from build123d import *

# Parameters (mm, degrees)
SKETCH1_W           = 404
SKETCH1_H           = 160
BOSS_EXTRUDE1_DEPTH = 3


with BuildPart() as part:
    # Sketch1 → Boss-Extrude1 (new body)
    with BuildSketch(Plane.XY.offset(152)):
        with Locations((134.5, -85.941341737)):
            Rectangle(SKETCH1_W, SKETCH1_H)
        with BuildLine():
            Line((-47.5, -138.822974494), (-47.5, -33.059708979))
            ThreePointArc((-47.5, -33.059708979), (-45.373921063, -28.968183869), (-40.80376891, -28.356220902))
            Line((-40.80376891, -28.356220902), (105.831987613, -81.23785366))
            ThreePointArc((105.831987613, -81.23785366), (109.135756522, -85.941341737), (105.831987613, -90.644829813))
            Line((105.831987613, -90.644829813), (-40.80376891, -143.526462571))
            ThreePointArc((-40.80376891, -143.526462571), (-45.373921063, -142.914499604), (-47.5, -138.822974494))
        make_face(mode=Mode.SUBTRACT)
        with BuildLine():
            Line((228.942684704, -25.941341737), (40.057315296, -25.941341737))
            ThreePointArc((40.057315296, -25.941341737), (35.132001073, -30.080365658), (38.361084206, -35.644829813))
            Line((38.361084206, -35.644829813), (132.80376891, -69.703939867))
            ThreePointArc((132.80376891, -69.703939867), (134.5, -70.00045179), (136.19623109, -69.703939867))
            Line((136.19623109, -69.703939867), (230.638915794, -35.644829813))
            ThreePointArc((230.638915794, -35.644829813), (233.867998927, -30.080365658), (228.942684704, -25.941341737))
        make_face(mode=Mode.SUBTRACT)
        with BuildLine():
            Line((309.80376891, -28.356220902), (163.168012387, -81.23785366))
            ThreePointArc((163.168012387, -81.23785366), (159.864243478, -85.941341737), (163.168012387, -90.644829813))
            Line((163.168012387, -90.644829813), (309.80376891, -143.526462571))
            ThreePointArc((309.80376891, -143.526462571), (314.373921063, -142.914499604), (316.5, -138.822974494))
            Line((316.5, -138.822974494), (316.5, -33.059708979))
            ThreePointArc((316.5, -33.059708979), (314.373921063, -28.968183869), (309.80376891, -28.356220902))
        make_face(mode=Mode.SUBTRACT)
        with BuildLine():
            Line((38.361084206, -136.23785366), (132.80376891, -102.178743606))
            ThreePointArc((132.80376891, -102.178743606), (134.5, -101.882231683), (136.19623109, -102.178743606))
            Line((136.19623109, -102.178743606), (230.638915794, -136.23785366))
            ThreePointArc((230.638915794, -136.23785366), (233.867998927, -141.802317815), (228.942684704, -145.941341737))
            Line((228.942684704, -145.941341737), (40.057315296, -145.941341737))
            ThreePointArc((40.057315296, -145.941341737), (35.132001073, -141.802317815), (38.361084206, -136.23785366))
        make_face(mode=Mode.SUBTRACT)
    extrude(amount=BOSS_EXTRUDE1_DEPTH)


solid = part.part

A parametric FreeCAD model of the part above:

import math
import FreeCAD as App
import Part
import Sketcher

doc = App.newDocument("Part")
body = doc.addObject("PartDesign::Body", "Body")

# Sketch on XY plane
sketch1 = doc.addObject("Sketcher::SketchObject", "Sketch")
body.addObject(sketch1)
sketch1.AttachmentSupport = (doc.XY_Plane, [""])
sketch1.MapMode = "FlatFace"
sketch1.AttachmentOffset = App.Placement(App.Vector(0, 0, 152), App.Rotation())
sketch1.addGeometry(Part.LineSegment(App.Vector(-67.5, -5.9, 0), App.Vector(-67.5, -165.9, 0)), False)
sketch1.addGeometry(Part.LineSegment(App.Vector(-67.5, -165.9, 0), App.Vector(336.5, -165.9, 0)), False)
sketch1.addGeometry(Part.LineSegment(App.Vector(336.5, -165.9, 0), App.Vector(336.5, -5.9, 0)), False)
sketch1.addGeometry(Part.LineSegment(App.Vector(336.5, -5.9, 0), App.Vector(-67.5, -5.9, 0)), False)
sketch1.addGeometry(Part.ArcOfCircle(Part.Circle(App.Vector(40.1, -140.9, 0), App.Vector(0, 0, 1), 5), math.radians(110), math.radians(270)), False)
sketch1.addGeometry(Part.LineSegment(App.Vector(38.4, -136.2, 0), App.Vector(132.8, -102.2, 0)), False)
sketch1.addGeometry(Part.ArcOfCircle(Part.Circle(App.Vector(134.5, -106.9, 0), App.Vector(0, 0, 1), 5), math.radians(70), math.radians(110)), False)
sketch1.addGeometry(Part.LineSegment(App.Vector(136.2, -102.2, 0), App.Vector(230.6, -136.2, 0)), False)
sketch1.addGeometry(Part.ArcOfCircle(Part.Circle(App.Vector(228.9, -140.9, 0), App.Vector(0, 0, 1), 5), math.radians(-90), math.radians(70)), False)
sketch1.addGeometry(Part.LineSegment(App.Vector(228.9, -145.9, 0), App.Vector(40.1, -145.9, 0)), False)
sketch1.addGeometry(Part.ArcOfCircle(Part.Circle(App.Vector(-42.5, -138.8, 0), App.Vector(0, 0, 1), 5), math.radians(180), math.radians(290)), False)
sketch1.addGeometry(Part.LineSegment(App.Vector(-47.5, -138.8, 0), App.Vector(-47.5, -33.1, 0)), False)
sketch1.addGeometry(Part.ArcOfCircle(Part.Circle(App.Vector(-42.5, -33.1, 0), App.Vector(0, 0, 1), 5), math.radians(70), math.radians(180)), False)
sketch1.addGeometry(Part.LineSegment(App.Vector(-40.8, -28.4, 0), App.Vector(105.8, -81.2, 0)), False)
sketch1.addGeometry(Part.ArcOfCircle(Part.Circle(App.Vector(104.1, -85.9, 0), App.Vector(0, 0, 1), 5), math.radians(-70), math.radians(70)), False)
sketch1.addGeometry(Part.LineSegment(App.Vector(105.8, -90.6, 0), App.Vector(-40.8, -143.5, 0)), False)
sketch1.addGeometry(Part.LineSegment(App.Vector(163.2, -81.2, 0), App.Vector(309.8, -28.4, 0)), False)
sketch1.addGeometry(Part.ArcOfCircle(Part.Circle(App.Vector(311.5, -33.1, 0), App.Vector(0, 0, 1), 5), math.radians(0), math.radians(110)), False)
sketch1.addGeometry(Part.LineSegment(App.Vector(316.5, -33.1, 0), App.Vector(316.5, -138.8, 0)), False)
sketch1.addGeometry(Part.ArcOfCircle(Part.Circle(App.Vector(311.5, -138.8, 0), App.Vector(0, 0, 1), 5), math.radians(-110), math.radians(0)), False)
sketch1.addGeometry(Part.LineSegment(App.Vector(309.8, -143.5, 0), App.Vector(163.2, -90.6, 0)), False)
sketch1.addGeometry(Part.ArcOfCircle(Part.Circle(App.Vector(164.9, -85.9, 0), App.Vector(0, 0, 1), 5), math.radians(110), math.radians(250)), False)
sketch1.addGeometry(Part.LineSegment(App.Vector(40.1, -25.9, 0), App.Vector(228.9, -25.9, 0)), False)
sketch1.addGeometry(Part.ArcOfCircle(Part.Circle(App.Vector(228.9, -30.9, 0), App.Vector(0, 0, 1), 5), math.radians(-70), math.radians(90)), False)
sketch1.addGeometry(Part.LineSegment(App.Vector(230.6, -35.6, 0), App.Vector(136.2, -69.7, 0)), False)
sketch1.addGeometry(Part.ArcOfCircle(Part.Circle(App.Vector(134.5, -65, 0), App.Vector(0, 0, 1), 5), math.radians(-110), math.radians(-70)), False)
sketch1.addGeometry(Part.LineSegment(App.Vector(132.8, -69.7, 0), App.Vector(38.4, -35.6, 0)), False)
sketch1.addGeometry(Part.ArcOfCircle(Part.Circle(App.Vector(40.1, -30.9, 0), App.Vector(0, 0, 1), 5), math.radians(90), math.radians(250)), False)
sketch1.addConstraint(Sketcher.Constraint("Coincident", 0, 2, 1, 1))
sketch1.addConstraint(Sketcher.Constraint("Coincident", 1, 2, 2, 1))
sketch1.addConstraint(Sketcher.Constraint("Coincident", 2, 2, 3, 1))
sketch1.addConstraint(Sketcher.Constraint("Coincident", 3, 2, 0, 1))
sketch1.addConstraint(Sketcher.Constraint("Tangent", 4, 1, 5, 1))
sketch1.addConstraint(Sketcher.Constraint("Tangent", 5, 2, 6, 2))
sketch1.addConstraint(Sketcher.Constraint("Tangent", 6, 1, 7, 1))
sketch1.addConstraint(Sketcher.Constraint("Tangent", 7, 2, 8, 2))
sketch1.addConstraint(Sketcher.Constraint("Tangent", 8, 1, 9, 1))
sketch1.addConstraint(Sketcher.Constraint("Tangent", 9, 2, 4, 2))
sketch1.addConstraint(Sketcher.Constraint("Tangent", 10, 1, 11, 1))
sketch1.addConstraint(Sketcher.Constraint("Tangent", 11, 2, 12, 2))
sketch1.addConstraint(Sketcher.Constraint("Tangent", 12, 1, 13, 1))
sketch1.addConstraint(Sketcher.Constraint("Tangent", 13, 2, 14, 2))
sketch1.addConstraint(Sketcher.Constraint("Tangent", 14, 1, 15, 1))
sketch1.addConstraint(Sketcher.Constraint("Tangent", 15, 2, 10, 2))
sketch1.addConstraint(Sketcher.Constraint("Tangent", 16, 2, 17, 2))
sketch1.addConstraint(Sketcher.Constraint("Tangent", 17, 1, 18, 1))
sketch1.addConstraint(Sketcher.Constraint("Tangent", 18, 2, 19, 2))
sketch1.addConstraint(Sketcher.Constraint("Tangent", 19, 1, 20, 1))
sketch1.addConstraint(Sketcher.Constraint("Tangent", 20, 2, 21, 2))
sketch1.addConstraint(Sketcher.Constraint("Tangent", 21, 1, 16, 1))
sketch1.addConstraint(Sketcher.Constraint("Tangent", 22, 2, 23, 2))
sketch1.addConstraint(Sketcher.Constraint("Tangent", 23, 1, 24, 1))
sketch1.addConstraint(Sketcher.Constraint("Tangent", 24, 2, 25, 2))
sketch1.addConstraint(Sketcher.Constraint("Tangent", 25, 1, 26, 1))
sketch1.addConstraint(Sketcher.Constraint("Tangent", 26, 2, 27, 2))
sketch1.addConstraint(Sketcher.Constraint("Tangent", 27, 1, 22, 1))
sketch1.addConstraint(Sketcher.Constraint("Vertical", 0))
sketch1.addConstraint(Sketcher.Constraint("Horizontal", 1))
sketch1.addConstraint(Sketcher.Constraint("Vertical", 2))
sketch1.addConstraint(Sketcher.Constraint("Horizontal", 3))
sketch1.addConstraint(Sketcher.Constraint("Horizontal", 9))
sketch1.addConstraint(Sketcher.Constraint("Vertical", 11))
sketch1.addConstraint(Sketcher.Constraint("Vertical", 18))
sketch1.addConstraint(Sketcher.Constraint("Horizontal", 22))
sketch1.addConstraint(Sketcher.Constraint("Equal", 4, 6))
sketch1.addConstraint(Sketcher.Constraint("Equal", 6, 8))
sketch1.addConstraint(Sketcher.Constraint("Equal", 8, 10))
sketch1.addConstraint(Sketcher.Constraint("Equal", 10, 12))
sketch1.addConstraint(Sketcher.Constraint("Equal", 12, 14))
sketch1.addConstraint(Sketcher.Constraint("Equal", 14, 17))
sketch1.addConstraint(Sketcher.Constraint("Equal", 17, 19))
sketch1.addConstraint(Sketcher.Constraint("Equal", 19, 21))
sketch1.addConstraint(Sketcher.Constraint("Equal", 21, 23))
sketch1.addConstraint(Sketcher.Constraint("Equal", 23, 25))
sketch1.addConstraint(Sketcher.Constraint("Equal", 25, 27))
sketch1.addConstraint(Sketcher.Constraint("Parallel", 7, 13))
sketch1.addConstraint(Sketcher.Constraint("Parallel", 5, 15))
sketch1.addConstraint(Sketcher.Constraint("Parallel", 15, 16))
sketch1.addConstraint(Sketcher.Constraint("Parallel", 13, 20))
sketch1.addConstraint(Sketcher.Constraint("Parallel", 16, 24))
sketch1.addConstraint(Sketcher.Constraint("Parallel", 20, 26))
sketch1.addConstraint(Sketcher.Constraint("Horizontal", 12, 3, 17, 3))
sketch1.addConstraint(Sketcher.Constraint("Horizontal", 10, 3, 19, 3))
sketch1.addConstraint(Sketcher.Constraint("Horizontal", 14, 3, 21, 3))
sketch1.addConstraint(Sketcher.Constraint("Vertical", 8, 3, 23, 3))
sketch1.addConstraint(Sketcher.Constraint("Vertical", 6, 3, 25, 3))
sketch1.addConstraint(Sketcher.Constraint("Radius", 4, 5.0))
sketch1.addConstraint(Sketcher.Constraint("DistanceX", 1, 1, 1, 2, 404.0))
sketch1.addConstraint(Sketcher.Constraint("DistanceY", 0, 2, 0, 1, 160.0))
sketch1.addConstraint(Sketcher.Constraint("DistanceX", 10, 3, 6, 3, 177.0))
sketch1.addConstraint(Sketcher.Constraint("DistanceY", 4, 3, 14, 3, 55.0))
sketch1.addConstraint(Sketcher.Constraint("DistanceX", 6, 3, 17, 3, 177.0))
sketch1.addConstraint(Sketcher.Constraint("DistanceY", 21, 3, 23, 3, 55.0))
sketch1.addConstraint(Sketcher.Constraint("DistanceX", 0, 2, 10, 3, 25.0))
sketch1.addConstraint(Sketcher.Constraint("DistanceY", 0, 2, 4, 3, 25.0))
sketch1.addConstraint(Sketcher.Constraint("DistanceX", -1, 1, 6, 3, 134.5))
sketch1.addConstraint(Sketcher.Constraint("Distance", 13, 155.8798))
sketch1.addConstraint(Sketcher.Constraint("DistanceX", 9, 2, 9, 1, 188.885369))
sketch1.addConstraint(Sketcher.Constraint("DistanceY", 5, 2, 14, 3, 16.237402))
sketch1.addConstraint(Sketcher.Constraint("DistanceY", 4, 3, -1, 1, 140.941342))
pad1 = doc.addObject("PartDesign::Pad", "Pad")
body.addObject(pad1)
pad1.Profile = sketch1
pad1.Length = 3

doc.recompute()
